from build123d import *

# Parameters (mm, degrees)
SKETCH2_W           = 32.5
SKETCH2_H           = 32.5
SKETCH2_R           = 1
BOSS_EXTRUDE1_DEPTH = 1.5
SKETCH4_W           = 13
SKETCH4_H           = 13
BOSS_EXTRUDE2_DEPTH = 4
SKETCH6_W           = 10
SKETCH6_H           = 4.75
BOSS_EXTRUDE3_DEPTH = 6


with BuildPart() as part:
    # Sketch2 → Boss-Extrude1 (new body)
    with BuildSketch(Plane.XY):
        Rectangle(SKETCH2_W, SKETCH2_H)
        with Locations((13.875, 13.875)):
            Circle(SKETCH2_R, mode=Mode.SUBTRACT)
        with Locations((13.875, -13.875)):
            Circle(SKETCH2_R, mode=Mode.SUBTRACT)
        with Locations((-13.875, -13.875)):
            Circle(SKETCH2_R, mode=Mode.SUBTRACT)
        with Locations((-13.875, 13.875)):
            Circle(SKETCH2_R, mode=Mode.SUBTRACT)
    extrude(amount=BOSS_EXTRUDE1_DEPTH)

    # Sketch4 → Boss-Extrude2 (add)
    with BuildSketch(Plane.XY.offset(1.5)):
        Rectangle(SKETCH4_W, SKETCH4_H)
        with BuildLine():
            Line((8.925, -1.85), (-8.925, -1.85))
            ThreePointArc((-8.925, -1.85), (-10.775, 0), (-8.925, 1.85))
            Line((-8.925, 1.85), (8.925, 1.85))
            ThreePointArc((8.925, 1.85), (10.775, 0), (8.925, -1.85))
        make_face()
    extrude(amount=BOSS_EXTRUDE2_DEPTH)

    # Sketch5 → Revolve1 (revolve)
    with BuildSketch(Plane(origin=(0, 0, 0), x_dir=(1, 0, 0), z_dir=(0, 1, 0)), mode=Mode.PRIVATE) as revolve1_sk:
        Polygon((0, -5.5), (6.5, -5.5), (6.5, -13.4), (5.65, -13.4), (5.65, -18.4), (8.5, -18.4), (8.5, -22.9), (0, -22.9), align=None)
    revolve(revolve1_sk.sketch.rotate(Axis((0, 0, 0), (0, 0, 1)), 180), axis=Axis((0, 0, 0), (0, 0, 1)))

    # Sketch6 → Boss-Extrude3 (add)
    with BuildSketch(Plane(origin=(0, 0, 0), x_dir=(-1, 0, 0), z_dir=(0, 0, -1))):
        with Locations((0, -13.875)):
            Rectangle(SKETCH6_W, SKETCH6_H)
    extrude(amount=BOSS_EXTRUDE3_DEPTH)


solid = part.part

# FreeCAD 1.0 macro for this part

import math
import FreeCAD as App
import Part
import Sketcher
Q = App.Units.Quantity


def add_polygon(sketch, points):
    """Adds a closed chain of lines whose ends are joined by coincident constraints."""
    first, n = sketch.GeometryCount, len(points)
    for a, b in zip(points, points[1:] + points[:1]):
        sketch.addGeometry(Part.LineSegment(App.Vector(*a, 0), App.Vector(*b, 0)), False)
    for i in range(n):
        sketch.addConstraint(Sketcher.Constraint("Coincident", first + i, 2, first + (i + 1) % n, 1))

doc = App.newDocument("Part")
body = doc.addObject("PartDesign::Body", "Body")

# Sketch on XY plane
sketch1 = body.newObject("Sketcher::SketchObject", "Sketch")
sketch1.AttachmentSupport = (doc.getObject("XY_Plane"), [""])
sketch1.MapMode = "FlatFace"
add_polygon(sketch1, [(-16.2, 16.2), (-16.2, -16.2), (16.2, -16.2), (16.2, 16.2)])  # lines 0-3
sketch1.addGeometry(Part.Circle(App.Vector(-13.9, -13.9, 0), App.Vector(0, 0, 1), 1), False)  # 4
sketch1.addGeometry(Part.Circle(App.Vector(13.9, -13.9, 0), App.Vector(0, 0, 1), 1), False)  # 5
sketch1.addGeometry(Part.Circle(App.Vector(-13.9, 13.9, 0), App.Vector(0, 0, 1), 1), False)  # 6
sketch1.addGeometry(Part.Circle(App.Vector(13.9, 13.9, 0), App.Vector(0, 0, 1), 1), False)  # 7
sketch1.addConstraint([
    Sketcher.Constraint("Vertical", 0),
    Sketcher.Constraint("Horizontal", 1),
    Sketcher.Constraint("Vertical", 2),
    Sketcher.Constraint("Horizontal", 3),
    Sketcher.Constraint("Equal", 4, 5),
    Sketcher.Constraint("Equal", 5, 6),
    Sketcher.Constraint("Equal", 6, 7),
    Sketcher.Constraint("Symmetric", 5, 3, 6, 3, -1, 1),
    Sketcher.Constraint("Symmetric", 4, 3, 7, 3, -1, 1),
    Sketcher.Constraint("Symmetric", 0, 2, 2, 2, -1, 1),
    Sketcher.Constraint("Symmetric", 4, 3, 5, 3, -2),
    Sketcher.Constraint("Equal", 3, 0),
    Sketcher.Constraint("Diameter", 4, Q("2 mm")),
    Sketcher.Constraint("DistanceX", 1, 1, 1, 2, Q("32.5 mm")),
    Sketcher.Constraint("DistanceX", 4, 3, 5, 3, Q("27.75 mm")),
    Sketcher.Constraint("DistanceY", 4, 3, 6, 3, Q("27.75 mm")),
])
pad1 = body.newObject("PartDesign::Pad", "Pad")
pad1.Profile = sketch1
pad1.Length = 1.5

# Sketch on XY plane
sketch2 = body.newObject("Sketcher::SketchObject", "Sketch001")
sketch2.AttachmentSupport = (doc.getObject("XY_Plane"), [""])
sketch2.MapMode = "FlatFace"
sketch2.AttachmentOffset = App.Placement(App.Vector(0, 0, 1.5), App.Rotation())
sketch2.addGeometry([
    Part.LineSegment(App.Vector(-6.5, -1.9, 0), App.Vector(-6.5, -6.5, 0)),  # 0
    Part.LineSegment(App.Vector(-6.5, -6.5, 0), App.Vector(6.5, -6.5, 0)),  # 1
    Part.LineSegment(App.Vector(6.5, -6.5, 0), App.Vector(6.5, -1.9, 0)),  # 2
    Part.LineSegment(App.Vector(6.5, -1.9, 0), App.Vector(8.9, -1.9, 0)),  # 3
    Part.ArcOfCircle(Part.Circle(App.Vector(8.9, 0, 0), App.Vector(0, 0, 1), 1.9), math.radians(-90), math.radians(90)),  # 4
    Part.LineSegment(App.Vector(8.9, 1.9, 0), App.Vector(6.5, 1.9, 0)),  # 5
    Part.LineSegment(App.Vector(6.5, 1.9, 0), App.Vector(6.5, 6.5, 0)),  # 6
    Part.LineSegment(App.Vector(6.5, 6.5, 0), App.Vector(-6.5, 6.5, 0)),  # 7
    Part.LineSegment(App.Vector(-6.5, 6.5, 0), App.Vector(-6.5, 1.9, 0)),  # 8
    Part.LineSegment(App.Vector(-6.5, 1.9, 0), App.Vector(-8.9, 1.9, 0)),  # 9
    Part.ArcOfCircle(Part.Circle(App.Vector(-8.9, 0, 0), App.Vector(0, 0, 1), 1.9), math.radians(90), math.radians(270)),  # 10
    Part.LineSegment(App.Vector(-8.9, -1.9, 0), App.Vector(-6.5, -1.9, 0)),  # 11
], False)
sketch2.addConstraint([
    Sketcher.Constraint("Coincident", 0, 2, 1, 1),
    Sketcher.Constraint("Coincident", 1, 2, 2, 1),
    Sketcher.Constraint("Coincident", 2, 2, 3, 1),
    Sketcher.Constraint("Tangent", 3, 2, 4, 1),
    Sketcher.Constraint("Tangent", 4, 2, 5, 1),
    Sketcher.Constraint("Coincident", 5, 2, 6, 1),
    Sketcher.Constraint("Coincident", 6, 2, 7, 1),
    Sketcher.Constraint("Coincident", 7, 2, 8, 1),
    Sketcher.Constraint("Coincident", 8, 2, 9, 1),
    Sketcher.Constraint("Tangent", 9, 2, 10, 1),
    Sketcher.Constraint("Tangent", 10, 2, 11, 1),
    Sketcher.Constraint("Coincident", 11, 2, 0, 1),
    Sketcher.Constraint("Vertical", 0),
    Sketcher.Constraint("Horizontal", 1),
    Sketcher.Constraint("Vertical", 2),
    Sketcher.Constraint("Horizontal", 3),
    Sketcher.Constraint("Horizontal", 5),
    Sketcher.Constraint("Vertical", 6),
    Sketcher.Constraint("Horizontal", 7),
    Sketcher.Constraint("Vertical", 8),
    Sketcher.Constraint("Horizontal", 9),
    Sketcher.Constraint("Horizontal", 11),
    Sketcher.Constraint("Equal", 4, 10),
    Sketcher.Constraint("Symmetric", 4, 3, 10, 3, -1, 1),
    Sketcher.Constraint("Symmetric", 0, 2, 6, 2, -1, 1),
    Sketcher.Constraint("Symmetric", 5, 2, 8, 2, -2),
    Sketcher.Constraint("Vertical", 2, 2, 5, 2),
    Sketcher.Constraint("DistanceX", 1, 1, 1, 2, Q("13 mm")),
    Sketcher.Constraint("Radius", 4, Q("1.85 mm")),
    Sketcher.Constraint("DistanceY", 0, 2, 7, 2, Q("13 mm")),
    Sketcher.Constraint("DistanceX", 3, 1, 3, 2, Q("2.425 mm")),
])
pad2 = body.newObject("PartDesign::Pad", "Pad001")
pad2.Profile = sketch2
pad2.Length = 4

# Sketch on XZ plane
sketch3 = body.newObject("Sketcher::SketchObject", "Sketch002")
sketch3.AttachmentSupport = (doc.getObject("XZ_Plane"), [""])
sketch3.MapMode = "FlatFace"
add_polygon(sketch3, [(6.5, 5.5), (0, 5.5), (0, 22.9), (8.5, 22.9), (8.5, 18.4), (5.7, 18.4), (5.7, 13.4), (6.5, 13.4)])  # lines 0-7
sketch3.addConstraint([
    Sketcher.Constraint("Horizontal", 0),
    Sketcher.Constraint("Vertical", 1),
    Sketcher.Constraint("Horizontal", 2),
    Sketcher.Constraint("Vertical", 3),
    Sketcher.Constraint("Horizontal", 4),
    Sketcher.Constraint("Vertical", 5),
    Sketcher.Constraint("Horizontal", 6),
    Sketcher.Constraint("Vertical", 7),
    Sketcher.Constraint("PointOnObject", 0, 2, -2),
    Sketcher.Constraint("DistanceY", 5, 2, 5, 1, Q("5 mm")),
    Sketcher.Constraint("DistanceX", 0, 2, 0, 1, Q("6.5 mm")),
    Sketcher.Constraint("DistanceX", 2, 1, 2, 2, Q("8.5 mm")),
    Sketcher.Constraint("DistanceY", 1, 1, 1, 2, Q("17.4 mm")),
    Sketcher.Constraint("DistanceY", 3, 2, 3, 1, Q("4.5 mm")),
    Sketcher.Constraint("DistanceX", 4, 2, 4, 1, Q("2.85 mm")),
    Sketcher.Constraint("DistanceY", -1, 1, 0, 2, Q("5.5 mm")),
])
revolution = body.newObject("PartDesign::Revolution", "Revolution")
revolution.Profile = sketch3
revolution.ReferenceAxis = (sketch3, ["V_Axis"])
revolution.Angle = 360

# Sketch on XY plane
sketch4 = body.newObject("Sketcher::SketchObject", "Sketch003")
sketch4.AttachmentSupport = (doc.getObject("XY_Plane"), [""])
sketch4.MapMode = "FlatFace"
add_polygon(sketch4, [(5, -11.5), (5, -16.2), (-5, -16.2), (-5, -11.5)])  # lines 0-3
sketch4.addConstraint([
    Sketcher.Constraint("Vertical", 0),
    Sketcher.Constraint("Horizontal", 1),
    Sketcher.Constraint("Vertical", 2),
    Sketcher.Constraint("Horizontal", 3),
    Sketcher.Constraint("DistanceX", 1, 2, 1, 1, Q("10 mm")),
    Sketcher.Constraint("DistanceX", -1, 1, 0, 2, Q("5 mm")),
    Sketcher.Constraint("DistanceY", 0, 2, 0, 1, Q("4.75 mm")),
    Sketcher.Constraint("DistanceY", 2, 2, -1, 1, Q("11.5 mm")),
])
pad3 = body.newObject("PartDesign::Pad", "Pad002")
pad3.Profile = sketch4
pad3.Length = 6
pad3.Reversed = True

doc.recompute()
